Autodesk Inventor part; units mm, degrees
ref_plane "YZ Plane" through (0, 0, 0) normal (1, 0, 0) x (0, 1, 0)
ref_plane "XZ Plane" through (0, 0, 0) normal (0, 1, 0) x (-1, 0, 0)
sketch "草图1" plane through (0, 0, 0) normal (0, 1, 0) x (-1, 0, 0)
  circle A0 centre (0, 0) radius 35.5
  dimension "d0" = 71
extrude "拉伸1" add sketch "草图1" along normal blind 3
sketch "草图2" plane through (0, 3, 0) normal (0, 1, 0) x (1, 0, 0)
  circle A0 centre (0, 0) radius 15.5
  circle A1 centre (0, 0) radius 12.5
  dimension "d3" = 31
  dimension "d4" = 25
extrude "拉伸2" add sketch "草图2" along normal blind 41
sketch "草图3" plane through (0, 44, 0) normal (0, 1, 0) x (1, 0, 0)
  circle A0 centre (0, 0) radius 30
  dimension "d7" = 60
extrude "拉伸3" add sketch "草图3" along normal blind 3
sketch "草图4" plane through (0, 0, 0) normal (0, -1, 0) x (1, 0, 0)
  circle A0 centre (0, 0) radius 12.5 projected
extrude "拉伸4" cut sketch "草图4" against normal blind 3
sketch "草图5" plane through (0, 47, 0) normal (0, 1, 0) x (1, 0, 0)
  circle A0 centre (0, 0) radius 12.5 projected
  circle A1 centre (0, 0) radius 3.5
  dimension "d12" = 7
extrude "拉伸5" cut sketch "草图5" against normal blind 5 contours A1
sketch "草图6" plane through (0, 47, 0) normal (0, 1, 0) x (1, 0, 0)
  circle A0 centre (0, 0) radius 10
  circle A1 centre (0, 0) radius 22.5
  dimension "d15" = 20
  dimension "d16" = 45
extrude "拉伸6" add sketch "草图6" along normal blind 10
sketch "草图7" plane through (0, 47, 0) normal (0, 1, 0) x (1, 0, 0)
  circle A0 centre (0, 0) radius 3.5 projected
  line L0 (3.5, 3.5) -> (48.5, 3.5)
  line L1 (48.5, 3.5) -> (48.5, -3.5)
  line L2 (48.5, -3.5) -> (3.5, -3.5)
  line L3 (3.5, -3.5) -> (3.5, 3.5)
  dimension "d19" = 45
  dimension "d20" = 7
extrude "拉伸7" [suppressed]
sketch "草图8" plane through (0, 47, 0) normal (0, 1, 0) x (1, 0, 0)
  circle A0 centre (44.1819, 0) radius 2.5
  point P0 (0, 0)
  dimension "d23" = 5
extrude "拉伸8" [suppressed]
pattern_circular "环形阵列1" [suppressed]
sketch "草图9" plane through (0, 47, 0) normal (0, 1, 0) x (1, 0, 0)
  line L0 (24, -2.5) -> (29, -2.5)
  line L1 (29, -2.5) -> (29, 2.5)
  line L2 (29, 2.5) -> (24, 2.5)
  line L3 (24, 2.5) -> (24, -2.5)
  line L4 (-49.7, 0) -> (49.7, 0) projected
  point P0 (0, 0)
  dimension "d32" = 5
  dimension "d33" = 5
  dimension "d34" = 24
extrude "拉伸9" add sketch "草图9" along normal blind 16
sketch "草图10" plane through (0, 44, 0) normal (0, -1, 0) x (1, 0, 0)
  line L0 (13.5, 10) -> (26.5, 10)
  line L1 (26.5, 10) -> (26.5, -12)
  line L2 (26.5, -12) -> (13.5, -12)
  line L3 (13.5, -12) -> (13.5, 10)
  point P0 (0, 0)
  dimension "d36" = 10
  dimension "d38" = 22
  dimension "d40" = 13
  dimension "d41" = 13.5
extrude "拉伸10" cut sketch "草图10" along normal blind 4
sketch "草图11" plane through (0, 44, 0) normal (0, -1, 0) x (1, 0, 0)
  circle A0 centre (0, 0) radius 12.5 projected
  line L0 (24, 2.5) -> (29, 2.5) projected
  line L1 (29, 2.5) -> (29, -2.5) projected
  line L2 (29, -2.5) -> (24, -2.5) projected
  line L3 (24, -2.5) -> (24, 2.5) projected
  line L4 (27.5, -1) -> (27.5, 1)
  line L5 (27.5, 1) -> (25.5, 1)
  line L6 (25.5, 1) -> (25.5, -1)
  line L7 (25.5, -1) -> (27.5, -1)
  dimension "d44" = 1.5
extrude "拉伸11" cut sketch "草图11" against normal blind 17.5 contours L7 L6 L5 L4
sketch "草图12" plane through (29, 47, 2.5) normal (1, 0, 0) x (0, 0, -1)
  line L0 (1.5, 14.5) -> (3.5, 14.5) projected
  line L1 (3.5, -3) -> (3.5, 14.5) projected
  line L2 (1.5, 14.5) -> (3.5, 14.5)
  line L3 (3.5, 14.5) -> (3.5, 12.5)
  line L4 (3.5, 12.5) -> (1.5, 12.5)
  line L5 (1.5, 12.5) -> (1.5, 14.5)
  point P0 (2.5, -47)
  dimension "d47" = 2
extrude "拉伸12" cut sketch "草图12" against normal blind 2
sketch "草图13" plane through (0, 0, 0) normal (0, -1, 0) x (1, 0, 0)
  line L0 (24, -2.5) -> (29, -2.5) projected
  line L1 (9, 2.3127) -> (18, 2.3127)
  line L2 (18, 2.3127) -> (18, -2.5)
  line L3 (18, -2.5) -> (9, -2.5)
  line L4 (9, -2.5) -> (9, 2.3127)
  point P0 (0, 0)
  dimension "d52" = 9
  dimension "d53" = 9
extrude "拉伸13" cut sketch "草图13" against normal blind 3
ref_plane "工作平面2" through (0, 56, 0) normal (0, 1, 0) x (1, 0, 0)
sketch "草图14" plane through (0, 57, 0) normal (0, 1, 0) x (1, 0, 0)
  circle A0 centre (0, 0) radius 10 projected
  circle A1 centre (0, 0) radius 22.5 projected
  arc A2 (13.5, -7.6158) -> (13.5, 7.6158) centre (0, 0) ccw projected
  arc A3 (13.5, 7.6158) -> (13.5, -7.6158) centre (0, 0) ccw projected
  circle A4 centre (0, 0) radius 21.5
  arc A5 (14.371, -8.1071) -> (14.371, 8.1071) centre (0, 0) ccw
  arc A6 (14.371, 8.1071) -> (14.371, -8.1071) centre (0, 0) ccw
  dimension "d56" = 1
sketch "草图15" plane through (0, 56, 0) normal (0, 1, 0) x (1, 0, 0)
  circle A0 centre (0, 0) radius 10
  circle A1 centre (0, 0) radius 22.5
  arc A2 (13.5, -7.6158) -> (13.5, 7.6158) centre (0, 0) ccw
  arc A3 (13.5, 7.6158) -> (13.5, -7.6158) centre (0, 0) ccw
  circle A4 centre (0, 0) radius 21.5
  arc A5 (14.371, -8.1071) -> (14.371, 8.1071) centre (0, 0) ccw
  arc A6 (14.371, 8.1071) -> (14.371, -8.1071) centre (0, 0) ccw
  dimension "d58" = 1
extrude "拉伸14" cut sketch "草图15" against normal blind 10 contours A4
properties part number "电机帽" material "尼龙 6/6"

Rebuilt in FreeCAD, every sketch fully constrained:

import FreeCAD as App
import Part
import Sketcher

V = App.Vector
Q = App.Units.Quantity

doc = App.newDocument("Part")
params = doc.addObject("Spreadsheet::Sheet", "Params")
for row, (alias, value) in enumerate([
    ("sketch1_diameter", "71 mm"),
    ("pad1_length", "3 mm"),
    ("sketch2_diameter", "31 mm"),
    ("sketch2_diameter2", "25 mm"),
    ("pad2_length", "41 mm"),
    ("sketch3_diameter", "60 mm"),
    ("pad3_length", "3 mm"),
    ("sketch4_diameter", "25 mm"),
    ("pocket1_length", "3 mm"),
    ("sketch5_diameter", "7 mm"),
    ("pocket2_length", "5 mm"),
    ("sketch6_diameter", "45 mm"),
    ("sketch6_diameter2", "20 mm"),
    ("pad4_length", "10 mm"),
    ("sketch7_width", "5 mm"),
    ("pad5_length", "16 mm"),
    ("sketch8_width", "13 mm"),
    ("sketch8_height", "22 mm"),
    ("pocket3_length", "4 mm"),
    ("sketch9_width", "2 mm"),
    ("pocket4_length", "17.5 mm"),
    ("sketch10_width", "2 mm"),
    ("pocket5_length", "2 mm"),
    ("sketch11_width", "9 mm"),
    ("pocket6_length", "3 mm"),
    ("sketch12_diameter", "43 mm"),
    ("sketch12_diameter2", "33 mm"),
    ("pocket7_length", "10 mm"),
], start=1):
    params.set(f"A{row}", alias)
    params.set(f"B{row}", "=" + value)
    params.setAlias(f"B{row}", alias)

body = doc.addObject("PartDesign::Body", "Body")

# Sketch on XZ plane
sketch1 = doc.addObject("Sketcher::SketchObject", "Sketch")
body.addObject(sketch1)
sketch1.AttachmentSupport = (doc.XZ_Plane, [""])
sketch1.MapMode = "FlatFace"
sketch1.addGeometry(Part.Circle(V(0, 0, 0), V(0, 0, 1), 35.5), False)
sketch1.addConstraint(Sketcher.Constraint("Coincident", 0, 3, -1, 1))
sketch1.addConstraint(Sketcher.Constraint("Diameter", 0, Q("71 mm")))
sketch1.setExpression("Constraints[1]", "Params.sketch1_diameter")
pad1 = doc.addObject("PartDesign::Pad", "Pad")
body.addObject(pad1)
pad1.Profile = sketch1
pad1.setExpression("Length", "Params.pad1_length")
pad1.Reversed = True

# Sketch on XZ plane
sketch2 = doc.addObject("Sketcher::SketchObject", "Sketch001")
body.addObject(sketch2)
sketch2.AttachmentSupport = (doc.XZ_Plane, [""])
sketch2.MapMode = "FlatFace"
sketch2.AttachmentOffset = App.Placement(V(0, 0, -3), App.Rotation())
sketch2.addGeometry(Part.Circle(V(0, 0, 0), V(0, 0, 1), 15.5), False)
sketch2.addGeometry(Part.Circle(V(0, 0, 0), V(0, 0, 1), 12.5), False)
sketch2.addConstraint(Sketcher.Constraint("Coincident", 0, 3, -1, 1))
sketch2.addConstraint(Sketcher.Constraint("Coincident", 1, 3, -1, 1))
sketch2.addConstraint(Sketcher.Constraint("Diameter", 0, Q("31 mm")))
sketch2.addConstraint(Sketcher.Constraint("Diameter", 1, Q("25 mm")))
sketch2.setExpression("Constraints[2]", "Params.sketch2_diameter")
sketch2.setExpression("Constraints[3]", "Params.sketch2_diameter2")
pad2 = doc.addObject("PartDesign::Pad", "Pad001")
body.addObject(pad2)
pad2.Profile = sketch2
pad2.setExpression("Length", "Params.pad2_length")
pad2.Reversed = True

# Sketch on XZ plane
sketch3 = doc.addObject("Sketcher::SketchObject", "Sketch002")
body.addObject(sketch3)
sketch3.AttachmentSupport = (doc.XZ_Plane, [""])
sketch3.MapMode = "FlatFace"
sketch3.AttachmentOffset = App.Placement(V(0, 0, -44), App.Rotation())
sketch3.addGeometry(Part.Circle(V(0, 0, 0), V(0, 0, 1), 30), False)
sketch3.addConstraint(Sketcher.Constraint("Coincident", 0, 3, -1, 1))
sketch3.addConstraint(Sketcher.Constraint("Diameter", 0, Q("60 mm")))
sketch3.setExpression("Constraints[1]", "Params.sketch3_diameter")
pad3 = doc.addObject("PartDesign::Pad", "Pad002")
body.addObject(pad3)
pad3.Profile = sketch3
pad3.setExpression("Length", "Params.pad3_length")
pad3.Reversed = True

# Sketch on XZ plane
sketch4 = doc.addObject("Sketcher::SketchObject", "Sketch003")
body.addObject(sketch4)
sketch4.AttachmentSupport = (doc.XZ_Plane, [""])
sketch4.MapMode = "FlatFace"
sketch4.addGeometry(Part.Circle(V(0, 0, 0), V(0, 0, 1), 12.5), False)
sketch4.addConstraint(Sketcher.Constraint("Coincident", 0, 3, -1, 1))
sketch4.addConstraint(Sketcher.Constraint("Diameter", 0, Q("25 mm")))
sketch4.setExpression("Constraints[1]", "Params.sketch4_diameter")
pocket1 = doc.addObject("PartDesign::Pocket", "Pocket")
body.addObject(pocket1)
pocket1.Profile = sketch4
pocket1.setExpression("Length", "Params.pocket1_length")

# Sketch on XZ plane
sketch5 = doc.addObject("Sketcher::SketchObject", "Sketch004")
body.addObject(sketch5)
sketch5.AttachmentSupport = (doc.XZ_Plane, [""])
sketch5.MapMode = "FlatFace"
sketch5.AttachmentOffset = App.Placement(V(0, 0, -47), App.Rotation())
sketch5.addGeometry(Part.Circle(V(0, 0, 0), V(0, 0, 1), 3.5), False)
sketch5.addConstraint(Sketcher.Constraint("Coincident", 0, 3, -1, 1))
sketch5.addConstraint(Sketcher.Constraint("Diameter", 0, Q("7 mm")))
sketch5.setExpression("Constraints[1]", "Params.sketch5_diameter")
pocket2 = doc.addObject("PartDesign::Pocket", "Pocket001")
body.addObject(pocket2)
pocket2.Profile = sketch5
pocket2.setExpression("Length", "Params.pocket2_length")
pocket2.Reversed = True

# Sketch on XZ plane
sketch6 = doc.addObject("Sketcher::SketchObject", "Sketch005")
body.addObject(sketch6)
sketch6.AttachmentSupport = (doc.XZ_Plane, [""])
sketch6.MapMode = "FlatFace"
sketch6.AttachmentOffset = App.Placement(V(0, 0, -47), App.Rotation())
sketch6.addGeometry(Part.Circle(V(0, 0, 0), V(0, 0, 1), 22.5), False)
sketch6.addGeometry(Part.Circle(V(0, 0, 0), V(0, 0, 1), 10), False)
sketch6.addConstraint(Sketcher.Constraint("Coincident", 0, 3, -1, 1))
sketch6.addConstraint(Sketcher.Constraint("Coincident", 1, 3, -1, 1))
sketch6.addConstraint(Sketcher.Constraint("Diameter", 0, Q("45 mm")))
sketch6.addConstraint(Sketcher.Constraint("Diameter", 1, Q("20 mm")))
sketch6.setExpression("Constraints[2]", "Params.sketch6_diameter")
sketch6.setExpression("Constraints[3]", "Params.sketch6_diameter2")
pad4 = doc.addObject("PartDesign::Pad", "Pad003")
body.addObject(pad4)
pad4.Profile = sketch6
pad4.setExpression("Length", "Params.pad4_length")
pad4.Reversed = True

# Sketch on XZ plane
sketch7 = doc.addObject("Sketcher::SketchObject", "Sketch006")
body.addObject(sketch7)
sketch7.AttachmentSupport = (doc.XZ_Plane, [""])
sketch7.MapMode = "FlatFace"
sketch7.AttachmentOffset = App.Placement(V(0, 0, -47), App.Rotation())
sketch7.addGeometry(Part.LineSegment(V(24, 2.5, 0), V(29, 2.5, 0)), False)
sketch7.addGeometry(Part.LineSegment(V(29, 2.5, 0), V(29, -2.5, 0)), False)
sketch7.addGeometry(Part.LineSegment(V(29, -2.5, 0), V(24, -2.5, 0)), False)
sketch7.addGeometry(Part.LineSegment(V(24, -2.5, 0), V(24, 2.5, 0)), False)
sketch7.addConstraint(Sketcher.Constraint("Coincident", 0, 2, 1, 1))
sketch7.addConstraint(Sketcher.Constraint("Coincident", 1, 2, 2, 1))
sketch7.addConstraint(Sketcher.Constraint("Coincident", 2, 2, 3, 1))
sketch7.addConstraint(Sketcher.Constraint("Coincident", 3, 2, 0, 1))
sketch7.addConstraint(Sketcher.Constraint("Horizontal", 0))
sketch7.addConstraint(Sketcher.Constraint("Vertical", 1))
sketch7.addConstraint(Sketcher.Constraint("Horizontal", 2))
sketch7.addConstraint(Sketcher.Constraint("Vertical", 3))
sketch7.addConstraint(Sketcher.Constraint("Equal", 2, 1))
sketch7.addConstraint(Sketcher.Constraint("DistanceX", 0, 1, 0, 2, Q("5 mm")))
sketch7.addConstraint(Sketcher.Constraint("DistanceX", -1, 1, 2, 2, Q("24 mm")))
sketch7.addConstraint(Sketcher.Constraint("DistanceY", -1, 1, 0, 2, Q("2.5 mm")))
sketch7.setExpression("Constraints[9]", "Params.sketch7_width")
pad5 = doc.addObject("PartDesign::Pad", "Pad004")
body.addObject(pad5)
pad5.Profile = sketch7
pad5.setExpression("Length", "Params.pad5_length")
pad5.Reversed = True

# Sketch on XZ plane
sketch8 = doc.addObject("Sketcher::SketchObject", "Sketch007")
body.addObject(sketch8)
sketch8.AttachmentSupport = (doc.XZ_Plane, [""])
sketch8.MapMode = "FlatFace"
sketch8.AttachmentOffset = App.Placement(V(0, 0, -44), App.Rotation())
sketch8.addGeometry(Part.LineSegment(V(26.5, 10, 0), V(13.5, 10, 0)), False)
sketch8.addGeometry(Part.LineSegment(V(13.5, 10, 0), V(13.5, -12, 0)), False)
sketch8.addGeometry(Part.LineSegment(V(13.5, -12, 0), V(26.5, -12, 0)), False)
sketch8.addGeometry(Part.LineSegment(V(26.5, -12, 0), V(26.5, 10, 0)), False)
sketch8.addConstraint(Sketcher.Constraint("Coincident", 0, 2, 1, 1))
sketch8.addConstraint(Sketcher.Constraint("Coincident", 1, 2, 2, 1))
sketch8.addConstraint(Sketcher.Constraint("Coincident", 2, 2, 3, 1))
sketch8.addConstraint(Sketcher.Constraint("Coincident", 3, 2, 0, 1))
sketch8.addConstraint(Sketcher.Constraint("Horizontal", 0))
sketch8.addConstraint(Sketcher.Constraint("Vertical", 1))
sketch8.addConstraint(Sketcher.Constraint("Horizontal", 2))
sketch8.addConstraint(Sketcher.Constraint("Vertical", 3))
sketch8.addConstraint(Sketcher.Constraint("DistanceX", 0, 2, 0, 1, Q("13 mm")))
sketch8.addConstraint(Sketcher.Constraint("DistanceY", 1, 2, 1, 1, Q("22 mm")))
sketch8.addConstraint(Sketcher.Constraint("DistanceY", -1, 1, 0, 2, Q("10 mm")))
sketch8.addConstraint(Sketcher.Constraint("DistanceX", -1, 1, 0, 2, Q("13.5 mm")))
sketch8.setExpression("Constraints[8]", "Params.sketch8_width")
sketch8.setExpression("Constraints[9]", "Params.sketch8_height")
pocket3 = doc.addObject("PartDesign::Pocket", "Pocket002")
body.addObject(pocket3)
pocket3.Profile = sketch8
pocket3.setExpression("Length", "Params.pocket3_length")
pocket3.Reversed = True

# Sketch on XZ plane
sketch9 = doc.addObject("Sketcher::SketchObject", "Sketch008")
body.addObject(sketch9)
sketch9.AttachmentSupport = (doc.XZ_Plane, [""])
sketch9.MapMode = "FlatFace"
sketch9.AttachmentOffset = App.Placement(V(0, 0, -44), App.Rotation())
sketch9.addGeometry(Part.LineSegment(V(25.5, -1, 0), V(27.5, -1, 0)), False)
sketch9.addGeometry(Part.LineSegment(V(27.5, -1, 0), V(27.5, 1, 0)), False)
sketch9.addGeometry(Part.LineSegment(V(27.5, 1, 0), V(25.5, 1, 0)), False)
sketch9.addGeometry(Part.LineSegment(V(25.5, 1, 0), V(25.5, -1, 0)), False)
sketch9.addConstraint(Sketcher.Constraint("Coincident", 0, 2, 1, 1))
sketch9.addConstraint(Sketcher.Constraint("Coincident", 1, 2, 2, 1))
sketch9.addConstraint(Sketcher.Constraint("Coincident", 2, 2, 3, 1))
sketch9.addConstraint(Sketcher.Constraint("Coincident", 3, 2, 0, 1))
sketch9.addConstraint(Sketcher.Constraint("Horizontal", 0))
sketch9.addConstraint(Sketcher.Constraint("Vertical", 1))
sketch9.addConstraint(Sketcher.Constraint("Horizontal", 2))
sketch9.addConstraint(Sketcher.Constraint("Vertical", 3))
sketch9.addConstraint(Sketcher.Constraint("Equal", 2, 1))
sketch9.addConstraint(Sketcher.Constraint("DistanceX", 0, 1, 0, 2, Q("2 mm")))
sketch9.addConstraint(Sketcher.Constraint("DistanceY", 0, 2, -1, 1, Q("1 mm")))
sketch9.addConstraint(Sketcher.Constraint("DistanceX", -1, 1, 0, 2, Q("27.5 mm")))
sketch9.setExpression("Constraints[9]", "Params.sketch9_width")
pocket4 = doc.addObject("PartDesign::Pocket", "Pocket003")
body.addObject(pocket4)
pocket4.Profile = sketch9
pocket4.setExpression("Length", "Params.pocket4_length")

# Sketch on YZ plane
sketch10 = doc.addObject("Sketcher::SketchObject", "Sketch009")
body.addObject(sketch10)
sketch10.AttachmentSupport = (doc.YZ_Plane, [""])
sketch10.MapMode = "FlatFace"
sketch10.AttachmentOffset = App.Placement(V(0, 0, 29), App.Rotation())
sketch10.addGeometry(Part.LineSegment(V(61.5, -1, 0), V(61.5, 1, 0)), False)
sketch10.addGeometry(Part.LineSegment(V(61.5, 1, 0), V(59.5, 1, 0)), False)
sketch10.addGeometry(Part.LineSegment(V(59.5, 1, 0), V(59.5, -1, 0)), False)
sketch10.addGeometry(Part.LineSegment(V(59.5, -1, 0), V(61.5, -1, 0)), False)
sketch10.addConstraint(Sketcher.Constraint("Coincident", 0, 2, 1, 1))
sketch10.addConstraint(Sketcher.Constraint("Coincident", 1, 2, 2, 1))
sketch10.addConstraint(Sketcher.Constraint("Coincident", 2, 2, 3, 1))
sketch10.addConstraint(Sketcher.Constraint("Coincident", 3, 2, 0, 1))
sketch10.addConstraint(Sketcher.Constraint("Vertical", 0))
sketch10.addConstraint(Sketcher.Constraint("Horizontal", 1))
sketch10.addConstraint(Sketcher.Constraint("Vertical", 2))
sketch10.addConstraint(Sketcher.Constraint("Horizontal", 3))
sketch10.addConstraint(Sketcher.Constraint("Equal", 3, 0))
sketch10.addConstraint(Sketcher.Constraint("DistanceX", 1, 2, 1, 1, Q("2 mm")))
sketch10.addConstraint(Sketcher.Constraint("DistanceY", -1, 1, 0, 2, Q("1 mm")))
sketch10.addConstraint(Sketcher.Constraint("DistanceX", -1, 1, 0, 2, Q("61.5 mm")))
sketch10.setExpression("Constraints[9]", "Params.sketch10_width")
pocket5 = doc.addObject("PartDesign::Pocket", "Pocket004")
body.addObject(pocket5)
pocket5.Profile = sketch10
pocket5.setExpression("Length", "Params.pocket5_length")

# Sketch on XZ plane
sketch11 = doc.addObject("Sketcher::SketchObject", "Sketch010")
body.addObject(sketch11)
sketch11.AttachmentSupport = (doc.XZ_Plane, [""])
sketch11.MapMode = "FlatFace"
sketch11.addGeometry(Part.LineSegment(V(18, 2.3127, 0), V(9, 2.3127, 0)), False)
sketch11.addGeometry(Part.LineSegment(V(9, 2.3127, 0), V(9, -2.5, 0)), False)
sketch11.addGeometry(Part.LineSegment(V(9, -2.5, 0), V(18, -2.5, 0)), False)
sketch11.addGeometry(Part.LineSegment(V(18, -2.5, 0), V(18, 2.3127, 0)), False)
sketch11.addConstraint(Sketcher.Constraint("Coincident", 0, 2, 1, 1))
sketch11.addConstraint(Sketcher.Constraint("Coincident", 1, 2, 2, 1))
sketch11.addConstraint(Sketcher.Constraint("Coincident", 2, 2, 3, 1))
sketch11.addConstraint(Sketcher.Constraint("Coincident", 3, 2, 0, 1))
sketch11.addConstraint(Sketcher.Constraint("Horizontal", 0))
sketch11.addConstraint(Sketcher.Constraint("Vertical", 1))
sketch11.addConstraint(Sketcher.Constraint("Horizontal", 2))
sketch11.addConstraint(Sketcher.Constraint("Vertical", 3))
sketch11.addConstraint(Sketcher.Constraint("DistanceX", 0, 2, 0, 1, Q("9 mm")))
sketch11.addConstraint(Sketcher.Constraint("DistanceX", -1, 1, 0, 2, Q("9 mm")))
sketch11.addConstraint(Sketcher.Constraint("DistanceY", 1, 2, -1, 1, Q("2.5 mm")))
sketch11.addConstraint(Sketcher.Constraint("DistanceY", 1, 2, 1, 1, Q("4.8127 mm")))
sketch11.setExpression("Constraints[8]", "Params.sketch11_width")
pocket6 = doc.addObject("PartDesign::Pocket", "Pocket005")
body.addObject(pocket6)
pocket6.Profile = sketch11
pocket6.setExpression("Length", "Params.pocket6_length")

# Sketch on XZ plane
sketch12 = doc.addObject("Sketcher::SketchObject", "Sketch011")
body.addObject(sketch12)
sketch12.AttachmentSupport = (doc.XZ_Plane, [""])
sketch12.MapMode = "FlatFace"
sketch12.AttachmentOffset = App.Placement(V(0, 0, -56), App.Rotation())
sketch12.addGeometry(Part.Circle(V(0, 0, 0), V(0, 0, 1), 21.5), False)
sketch12.addGeometry(Part.Circle(V(0, 0, 0), V(0, 0, 1), 16.500022), False)
sketch12.addConstraint(Sketcher.Constraint("Coincident", 0, 3, -1, 1))
sketch12.addConstraint(Sketcher.Constraint("Coincident", 1, 3, -1, 1))
sketch12.addConstraint(Sketcher.Constraint("Diameter", 0, Q("43 mm")))
sketch12.addConstraint(Sketcher.Constraint("Diameter", 1, Q("33 mm")))
sketch12.setExpression("Constraints[2]", "Params.sketch12_diameter")
sketch12.setExpression("Constraints[3]", "Params.sketch12_diameter2")
pocket7 = doc.addObject("PartDesign::Pocket", "Pocket006")
body.addObject(pocket7)
pocket7.Profile = sketch12
pocket7.setExpression("Length", "Params.pocket7_length")
pocket7.Reversed = True

doc.recompute()
